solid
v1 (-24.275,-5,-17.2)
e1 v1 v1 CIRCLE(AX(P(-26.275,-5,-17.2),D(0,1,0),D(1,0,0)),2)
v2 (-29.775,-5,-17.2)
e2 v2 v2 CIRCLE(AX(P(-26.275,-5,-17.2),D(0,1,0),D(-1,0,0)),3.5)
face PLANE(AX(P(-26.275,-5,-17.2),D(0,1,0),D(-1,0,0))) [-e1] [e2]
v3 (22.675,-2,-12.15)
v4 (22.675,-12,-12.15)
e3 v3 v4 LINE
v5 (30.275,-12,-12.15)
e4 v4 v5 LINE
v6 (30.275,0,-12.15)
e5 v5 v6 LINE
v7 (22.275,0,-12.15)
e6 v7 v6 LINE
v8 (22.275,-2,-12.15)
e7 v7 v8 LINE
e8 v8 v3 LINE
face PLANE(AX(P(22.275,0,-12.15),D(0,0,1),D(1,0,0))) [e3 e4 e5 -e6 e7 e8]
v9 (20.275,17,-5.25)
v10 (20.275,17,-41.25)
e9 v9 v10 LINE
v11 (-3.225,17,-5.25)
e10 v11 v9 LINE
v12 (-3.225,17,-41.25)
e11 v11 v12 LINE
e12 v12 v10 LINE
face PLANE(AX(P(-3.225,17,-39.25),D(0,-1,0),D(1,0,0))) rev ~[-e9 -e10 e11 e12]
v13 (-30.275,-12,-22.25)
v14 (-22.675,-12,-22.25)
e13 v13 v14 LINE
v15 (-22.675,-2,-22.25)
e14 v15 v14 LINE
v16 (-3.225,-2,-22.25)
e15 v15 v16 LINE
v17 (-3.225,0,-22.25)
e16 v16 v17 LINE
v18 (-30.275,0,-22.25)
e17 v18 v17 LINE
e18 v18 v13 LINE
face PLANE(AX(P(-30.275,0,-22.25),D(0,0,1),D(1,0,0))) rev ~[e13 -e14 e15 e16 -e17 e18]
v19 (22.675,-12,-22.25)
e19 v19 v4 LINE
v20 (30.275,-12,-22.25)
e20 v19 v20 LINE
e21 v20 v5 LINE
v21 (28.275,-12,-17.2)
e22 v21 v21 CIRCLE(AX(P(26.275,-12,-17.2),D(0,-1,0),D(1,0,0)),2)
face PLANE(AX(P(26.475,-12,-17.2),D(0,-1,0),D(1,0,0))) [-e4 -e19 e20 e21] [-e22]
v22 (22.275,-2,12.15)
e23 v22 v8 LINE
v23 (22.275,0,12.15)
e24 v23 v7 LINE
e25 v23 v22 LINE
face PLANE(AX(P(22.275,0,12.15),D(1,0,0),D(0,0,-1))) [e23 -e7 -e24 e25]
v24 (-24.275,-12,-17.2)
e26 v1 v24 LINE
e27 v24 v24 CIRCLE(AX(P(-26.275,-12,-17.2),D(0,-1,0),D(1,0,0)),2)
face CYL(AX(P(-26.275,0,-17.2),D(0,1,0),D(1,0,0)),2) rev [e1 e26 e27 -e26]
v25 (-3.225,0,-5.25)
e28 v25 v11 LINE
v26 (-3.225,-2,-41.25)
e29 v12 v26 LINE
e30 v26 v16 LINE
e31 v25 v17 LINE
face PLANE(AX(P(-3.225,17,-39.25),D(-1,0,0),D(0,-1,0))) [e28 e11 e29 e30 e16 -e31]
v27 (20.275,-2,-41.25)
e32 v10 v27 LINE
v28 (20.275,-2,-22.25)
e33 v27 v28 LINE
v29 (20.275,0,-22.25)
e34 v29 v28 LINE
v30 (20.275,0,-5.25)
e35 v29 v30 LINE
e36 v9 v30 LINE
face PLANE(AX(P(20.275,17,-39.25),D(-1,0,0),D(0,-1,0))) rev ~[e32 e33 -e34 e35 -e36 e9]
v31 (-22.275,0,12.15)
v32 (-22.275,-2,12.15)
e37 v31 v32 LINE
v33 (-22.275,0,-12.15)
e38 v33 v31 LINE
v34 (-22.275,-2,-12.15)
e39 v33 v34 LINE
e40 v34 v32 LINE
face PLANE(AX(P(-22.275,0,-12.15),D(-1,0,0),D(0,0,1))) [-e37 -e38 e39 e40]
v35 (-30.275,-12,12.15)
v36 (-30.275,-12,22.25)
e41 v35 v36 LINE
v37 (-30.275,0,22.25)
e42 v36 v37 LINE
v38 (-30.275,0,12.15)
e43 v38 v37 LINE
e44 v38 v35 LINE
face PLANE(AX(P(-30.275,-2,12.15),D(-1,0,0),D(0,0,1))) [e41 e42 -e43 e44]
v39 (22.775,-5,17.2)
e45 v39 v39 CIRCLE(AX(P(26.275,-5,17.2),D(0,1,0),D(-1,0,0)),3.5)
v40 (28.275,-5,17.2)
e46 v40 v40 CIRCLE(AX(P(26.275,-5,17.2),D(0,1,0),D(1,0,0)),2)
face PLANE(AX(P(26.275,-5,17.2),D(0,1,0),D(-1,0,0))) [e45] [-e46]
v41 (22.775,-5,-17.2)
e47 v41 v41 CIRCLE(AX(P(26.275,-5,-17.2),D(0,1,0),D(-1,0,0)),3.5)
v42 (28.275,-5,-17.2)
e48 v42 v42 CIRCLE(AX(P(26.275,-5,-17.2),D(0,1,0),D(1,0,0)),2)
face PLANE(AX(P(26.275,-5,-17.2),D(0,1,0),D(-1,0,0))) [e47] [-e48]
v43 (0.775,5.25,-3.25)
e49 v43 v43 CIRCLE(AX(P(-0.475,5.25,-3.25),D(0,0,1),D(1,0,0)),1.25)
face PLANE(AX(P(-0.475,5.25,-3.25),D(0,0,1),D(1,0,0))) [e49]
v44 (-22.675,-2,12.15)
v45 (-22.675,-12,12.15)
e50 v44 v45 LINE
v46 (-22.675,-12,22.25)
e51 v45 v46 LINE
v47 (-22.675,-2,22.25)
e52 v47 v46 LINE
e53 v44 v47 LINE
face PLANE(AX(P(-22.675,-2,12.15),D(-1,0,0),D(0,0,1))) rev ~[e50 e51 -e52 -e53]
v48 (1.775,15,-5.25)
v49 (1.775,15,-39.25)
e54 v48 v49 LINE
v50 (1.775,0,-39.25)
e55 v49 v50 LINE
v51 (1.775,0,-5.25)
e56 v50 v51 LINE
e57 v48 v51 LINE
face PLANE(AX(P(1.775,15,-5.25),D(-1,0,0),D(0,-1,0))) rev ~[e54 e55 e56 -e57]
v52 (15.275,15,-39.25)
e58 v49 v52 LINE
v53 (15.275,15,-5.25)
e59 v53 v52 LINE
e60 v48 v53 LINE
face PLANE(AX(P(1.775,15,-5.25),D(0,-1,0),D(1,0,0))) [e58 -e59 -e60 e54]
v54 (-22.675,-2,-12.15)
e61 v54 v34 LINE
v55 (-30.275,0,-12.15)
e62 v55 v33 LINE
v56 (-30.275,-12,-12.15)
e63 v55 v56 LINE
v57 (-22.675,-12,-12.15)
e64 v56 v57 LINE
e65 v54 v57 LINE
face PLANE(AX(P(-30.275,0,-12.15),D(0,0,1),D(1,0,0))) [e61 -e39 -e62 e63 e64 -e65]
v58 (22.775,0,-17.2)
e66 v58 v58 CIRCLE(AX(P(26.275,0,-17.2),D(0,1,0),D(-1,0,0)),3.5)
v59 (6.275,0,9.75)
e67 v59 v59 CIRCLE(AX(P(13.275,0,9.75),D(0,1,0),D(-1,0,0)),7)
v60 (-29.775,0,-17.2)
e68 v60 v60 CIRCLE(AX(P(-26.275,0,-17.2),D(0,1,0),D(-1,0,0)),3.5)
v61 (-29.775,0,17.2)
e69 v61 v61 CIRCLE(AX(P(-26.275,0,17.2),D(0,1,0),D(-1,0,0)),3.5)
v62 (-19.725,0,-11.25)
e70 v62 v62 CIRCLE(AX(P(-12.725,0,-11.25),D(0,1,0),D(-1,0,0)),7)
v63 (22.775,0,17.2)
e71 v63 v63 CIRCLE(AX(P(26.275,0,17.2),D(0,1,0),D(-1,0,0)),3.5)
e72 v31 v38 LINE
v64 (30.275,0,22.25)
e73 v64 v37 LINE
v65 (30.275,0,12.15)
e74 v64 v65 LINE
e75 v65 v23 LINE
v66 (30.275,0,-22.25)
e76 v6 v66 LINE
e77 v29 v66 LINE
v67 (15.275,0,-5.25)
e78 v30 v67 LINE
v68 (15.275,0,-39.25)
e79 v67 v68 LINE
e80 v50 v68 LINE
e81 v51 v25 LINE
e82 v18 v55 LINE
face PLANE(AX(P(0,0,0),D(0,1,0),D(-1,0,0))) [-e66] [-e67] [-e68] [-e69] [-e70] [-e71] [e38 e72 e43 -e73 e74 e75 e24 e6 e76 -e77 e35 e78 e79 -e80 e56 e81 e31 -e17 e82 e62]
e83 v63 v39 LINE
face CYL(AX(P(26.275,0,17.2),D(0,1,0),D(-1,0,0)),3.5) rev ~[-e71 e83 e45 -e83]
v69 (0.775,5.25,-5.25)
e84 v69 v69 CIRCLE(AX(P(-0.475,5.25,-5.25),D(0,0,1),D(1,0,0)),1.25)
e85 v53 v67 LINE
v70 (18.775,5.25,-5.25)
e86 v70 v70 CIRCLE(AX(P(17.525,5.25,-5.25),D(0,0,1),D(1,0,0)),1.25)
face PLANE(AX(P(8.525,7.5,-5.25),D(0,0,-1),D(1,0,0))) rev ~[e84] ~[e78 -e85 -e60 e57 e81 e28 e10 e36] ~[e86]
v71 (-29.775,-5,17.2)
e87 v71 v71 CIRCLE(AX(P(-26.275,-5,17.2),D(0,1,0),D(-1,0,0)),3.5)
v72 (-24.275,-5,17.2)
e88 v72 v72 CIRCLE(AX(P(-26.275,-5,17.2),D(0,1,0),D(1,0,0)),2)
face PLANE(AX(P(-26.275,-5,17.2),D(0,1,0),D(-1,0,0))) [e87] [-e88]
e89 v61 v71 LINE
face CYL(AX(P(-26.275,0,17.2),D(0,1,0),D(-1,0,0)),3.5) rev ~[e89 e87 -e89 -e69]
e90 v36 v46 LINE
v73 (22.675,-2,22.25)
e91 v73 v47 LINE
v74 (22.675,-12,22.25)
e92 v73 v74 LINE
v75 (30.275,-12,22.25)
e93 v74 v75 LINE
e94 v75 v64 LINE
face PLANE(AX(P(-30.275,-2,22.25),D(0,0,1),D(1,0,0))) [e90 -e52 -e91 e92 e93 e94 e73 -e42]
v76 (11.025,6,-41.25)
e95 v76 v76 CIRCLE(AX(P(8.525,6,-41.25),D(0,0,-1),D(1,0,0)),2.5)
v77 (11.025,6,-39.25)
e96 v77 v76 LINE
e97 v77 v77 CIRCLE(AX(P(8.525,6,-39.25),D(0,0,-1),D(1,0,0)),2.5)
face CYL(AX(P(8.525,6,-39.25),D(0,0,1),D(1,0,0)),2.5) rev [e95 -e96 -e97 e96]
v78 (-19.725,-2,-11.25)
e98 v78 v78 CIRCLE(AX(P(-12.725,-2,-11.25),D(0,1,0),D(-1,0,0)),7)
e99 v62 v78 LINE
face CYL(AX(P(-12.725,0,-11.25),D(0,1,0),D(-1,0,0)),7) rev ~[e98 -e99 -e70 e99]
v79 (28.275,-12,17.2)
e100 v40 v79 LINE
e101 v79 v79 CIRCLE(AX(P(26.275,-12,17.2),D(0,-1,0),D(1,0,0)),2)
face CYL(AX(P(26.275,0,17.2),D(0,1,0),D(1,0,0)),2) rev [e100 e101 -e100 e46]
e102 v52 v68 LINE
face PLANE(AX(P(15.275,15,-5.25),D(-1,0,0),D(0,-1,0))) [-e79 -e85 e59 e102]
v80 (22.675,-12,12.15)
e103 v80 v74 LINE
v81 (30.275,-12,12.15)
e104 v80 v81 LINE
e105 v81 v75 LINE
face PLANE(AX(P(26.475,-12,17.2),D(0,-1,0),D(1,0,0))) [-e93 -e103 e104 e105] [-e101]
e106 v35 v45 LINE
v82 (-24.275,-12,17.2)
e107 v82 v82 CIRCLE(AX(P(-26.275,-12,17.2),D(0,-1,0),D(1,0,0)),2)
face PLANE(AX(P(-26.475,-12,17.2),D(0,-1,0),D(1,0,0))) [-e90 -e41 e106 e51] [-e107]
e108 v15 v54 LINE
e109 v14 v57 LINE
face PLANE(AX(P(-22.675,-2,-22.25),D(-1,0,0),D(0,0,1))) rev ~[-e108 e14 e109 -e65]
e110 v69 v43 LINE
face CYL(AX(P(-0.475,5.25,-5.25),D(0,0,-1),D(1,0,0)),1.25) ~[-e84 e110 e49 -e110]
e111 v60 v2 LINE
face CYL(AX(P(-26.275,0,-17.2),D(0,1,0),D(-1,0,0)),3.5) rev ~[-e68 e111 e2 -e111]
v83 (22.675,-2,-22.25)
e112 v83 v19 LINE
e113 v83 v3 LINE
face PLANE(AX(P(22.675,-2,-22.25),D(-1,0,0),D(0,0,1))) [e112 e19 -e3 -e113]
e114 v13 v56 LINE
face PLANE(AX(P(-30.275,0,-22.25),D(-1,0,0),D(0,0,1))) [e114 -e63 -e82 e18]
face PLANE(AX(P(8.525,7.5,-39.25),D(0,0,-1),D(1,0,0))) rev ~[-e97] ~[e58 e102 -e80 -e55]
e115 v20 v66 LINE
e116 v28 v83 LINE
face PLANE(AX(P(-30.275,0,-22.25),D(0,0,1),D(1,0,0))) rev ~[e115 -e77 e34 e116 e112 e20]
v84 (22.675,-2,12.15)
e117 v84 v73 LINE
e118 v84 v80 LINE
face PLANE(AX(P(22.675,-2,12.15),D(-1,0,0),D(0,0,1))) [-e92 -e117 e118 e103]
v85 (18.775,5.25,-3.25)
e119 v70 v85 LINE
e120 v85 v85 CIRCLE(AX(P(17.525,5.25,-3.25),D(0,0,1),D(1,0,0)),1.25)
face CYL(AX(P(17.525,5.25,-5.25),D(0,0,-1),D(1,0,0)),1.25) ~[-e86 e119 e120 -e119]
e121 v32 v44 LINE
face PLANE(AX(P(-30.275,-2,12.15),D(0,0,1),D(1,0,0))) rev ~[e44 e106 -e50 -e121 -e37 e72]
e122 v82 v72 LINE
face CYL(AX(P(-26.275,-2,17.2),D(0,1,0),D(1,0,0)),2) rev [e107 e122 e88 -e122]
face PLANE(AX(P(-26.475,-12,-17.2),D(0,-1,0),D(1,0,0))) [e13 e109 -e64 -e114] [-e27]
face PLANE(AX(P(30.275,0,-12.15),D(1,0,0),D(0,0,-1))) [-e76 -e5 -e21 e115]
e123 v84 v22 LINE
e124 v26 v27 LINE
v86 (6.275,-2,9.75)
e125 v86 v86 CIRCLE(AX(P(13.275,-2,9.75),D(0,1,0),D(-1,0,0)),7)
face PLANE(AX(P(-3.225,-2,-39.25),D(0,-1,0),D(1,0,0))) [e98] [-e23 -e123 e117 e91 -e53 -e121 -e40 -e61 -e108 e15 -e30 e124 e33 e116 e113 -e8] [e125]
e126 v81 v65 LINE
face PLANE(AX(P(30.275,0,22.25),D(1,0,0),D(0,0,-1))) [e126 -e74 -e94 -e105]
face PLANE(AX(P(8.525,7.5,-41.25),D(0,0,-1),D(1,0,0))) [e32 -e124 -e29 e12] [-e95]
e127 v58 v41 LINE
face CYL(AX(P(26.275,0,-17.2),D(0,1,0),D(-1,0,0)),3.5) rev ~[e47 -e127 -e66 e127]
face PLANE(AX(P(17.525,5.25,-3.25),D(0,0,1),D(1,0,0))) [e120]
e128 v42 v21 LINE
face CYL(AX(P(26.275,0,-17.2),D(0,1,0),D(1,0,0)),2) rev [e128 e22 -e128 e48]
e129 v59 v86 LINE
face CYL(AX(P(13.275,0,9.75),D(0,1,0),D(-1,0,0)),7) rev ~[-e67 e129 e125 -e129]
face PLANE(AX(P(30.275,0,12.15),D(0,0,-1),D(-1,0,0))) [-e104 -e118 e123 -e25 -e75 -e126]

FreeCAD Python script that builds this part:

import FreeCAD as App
import Part
import Sketcher
from FreeCAD import Vector


def add_polygon(sketch, points):
    """Adds a closed chain of lines whose ends are joined by coincident constraints."""
    first, n = sketch.GeometryCount, len(points)
    for a, b in zip(points, points[1:] + points[:1]):
        sketch.addGeometry(Part.LineSegment(App.Vector(*a, 0), App.Vector(*b, 0)), False)
    for i in range(n):
        sketch.addConstraint(Sketcher.Constraint("Coincident", first + i, 2, first + (i + 1) % n, 1))

doc = App.newDocument("Part")
body = doc.addObject("PartDesign::Body", "Body")

# Sketch on XZ plane
sketch1 = body.newObject("Sketcher::SketchObject", "Sketch")
sketch1.AttachmentSupport = (doc.getObject("XZ_Plane"), [""])
sketch1.MapMode = "FlatFace"
add_polygon(sketch1, [(30.3, 22.2), (-30.3, 22.2), (-30.3, 12.2), (-22.3, 12.2), (-22.3, -12.2), (-30.3, -12.2), (-30.3, -22.2), (30.3, -22.2), (30.3, -12.2), (22.3, -12.2), (22.3, 12.2), (30.3, 12.2)])  # lines 0-11
sketch1.addGeometry(Part.Circle(Vector(26.3, -17.2, 0), Vector(0, 0, 1), 2), False)  # 12
sketch1.addGeometry(Part.Circle(Vector(-26.3, -17.2, 0), Vector(0, 0, 1), 2), False)  # 13
sketch1.addGeometry(Part.Circle(Vector(26.3, 17.2, 0), Vector(0, 0, 1), 2), False)  # 14
sketch1.addGeometry(Part.Circle(Vector(-26.3, 17.2, 0), Vector(0, 0, 1), 2), False)  # 15
sketch1.addConstraint([
    Sketcher.Constraint("Horizontal", 0),
    Sketcher.Constraint("Vertical", 1),
    Sketcher.Constraint("Horizontal", 2),
    Sketcher.Constraint("Vertical", 3),
    Sketcher.Constraint("Horizontal", 4),
    Sketcher.Constraint("Vertical", 5),
    Sketcher.Constraint("Horizontal", 6),
    Sketcher.Constraint("Vertical", 7),
    Sketcher.Constraint("Horizontal", 8),
    Sketcher.Constraint("Vertical", 9),
    Sketcher.Constraint("Horizontal", 10),
    Sketcher.Constraint("Vertical", 11),
    Sketcher.Constraint("Equal", 12, 13),
    Sketcher.Constraint("Equal", 13, 14),
    Sketcher.Constraint("Equal", 14, 15),
    Sketcher.Constraint("Symmetric", 13, 3, 14, 3, -1, 1),
    Sketcher.Constraint("Symmetric", 12, 3, 15, 3, -1, 1),
    Sketcher.Constraint("Symmetric", 0, 2, 6, 2, -1, 1),
    Sketcher.Constraint("Symmetric", 2, 2, 8, 2, -1, 1),
    Sketcher.Constraint("Symmetric", 4, 2, 10, 2, -1, 1),
    Sketcher.Constraint("Symmetric", 12, 3, 13, 3, -2),
    Sketcher.Constraint("Symmetric", 4, 2, 7, 2, -2),
    Sketcher.Constraint("Diameter", 12, 4.0),
    Sketcher.Constraint("DistanceX", 2, 1, 2, 2, 8.0),
    Sketcher.Constraint("DistanceY", 1, 2, 1, 1, 10.1),
    Sketcher.Constraint("DistanceY", 3, 2, 3, 1, 24.3),
    Sketcher.Constraint("DistanceX", 0, 2, 15, 3, 4.0),
    Sketcher.Constraint("DistanceX", 0, 2, 0, 1, 60.55),
    Sketcher.Constraint("DistanceY", 12, 3, -1, 1, 17.2),
])
pad1 = body.newObject("PartDesign::Pad", "Pad")
pad1.Profile = sketch1
pad1.Length = 2

# Sketch on XZ plane
sketch2 = body.newObject("Sketcher::SketchObject", "Sketch001")
sketch2.AttachmentSupport = (doc.getObject("XZ_Plane"), [""])
sketch2.MapMode = "FlatFace"
sketch2.AttachmentOffset = App.Placement(Vector(0, 0, 2), App.Rotation())
add_polygon(sketch2, [(-30.3, 22.2), (-30.3, 12.2), (-22.7, 12.2), (-22.7, 22.2)])  # lines 0-3
sketch2.addGeometry(Part.Circle(Vector(-26.3, 17.2, 0), Vector(0, 0, 1), 2), False)  # 4
add_polygon(sketch2, [(-30.3, -12.2), (-30.3, -22.2), (-22.7, -22.2), (-22.7, -12.2)])  # lines 5-8
sketch2.addGeometry(Part.Circle(Vector(-26.3, -17.2, 0), Vector(0, 0, 1), 2), False)  # 9
add_polygon(sketch2, [(22.7, -12.2), (22.7, -22.2), (30.3, -22.2), (30.3, -12.2)])  # lines 10-13
sketch2.addGeometry(Part.Circle(Vector(26.3, -17.2, 0), Vector(0, 0, 1), 2), False)  # 14
add_polygon(sketch2, [(22.7, 22.2), (22.7, 12.2), (30.3, 12.2), (30.3, 22.2)])  # lines 15-18
sketch2.addGeometry(Part.Circle(Vector(26.3, 17.2, 0), Vector(0, 0, 1), 2), False)  # 19
sketch2.addConstraint([
    Sketcher.Constraint("Vertical", 0),
    Sketcher.Constraint("Horizontal", 1),
    Sketcher.Constraint("Vertical", 2),
    Sketcher.Constraint("Horizontal", 3),
    Sketcher.Constraint("Vertical", 5),
    Sketcher.Constraint("Horizontal", 6),
    Sketcher.Constraint("Vertical", 7),
    Sketcher.Constraint("Horizontal", 8),
    Sketcher.Constraint("Vertical", 10),
    Sketcher.Constraint("Horizontal", 11),
    Sketcher.Constraint("Vertical", 12),
    Sketcher.Constraint("Horizontal", 13),
    Sketcher.Constraint("Vertical", 15),
    Sketcher.Constraint("Horizontal", 16),
    Sketcher.Constraint("Vertical", 17),
    Sketcher.Constraint("Horizontal", 18),
    Sketcher.Constraint("Equal", 4, 9),
    Sketcher.Constraint("Equal", 9, 14),
    Sketcher.Constraint("Equal", 14, 19),
    Sketcher.Constraint("Symmetric", 4, 3, 14, 3, -1, 1),
    Sketcher.Constraint("Symmetric", 9, 3, 19, 3, -1, 1),
    Sketcher.Constraint("Symmetric", 2, 2, 10, 2, -1, 1),
    Sketcher.Constraint("Symmetric", 0, 2, 12, 2, -1, 1),
    Sketcher.Constraint("Symmetric", 7, 2, 15, 2, -1, 1),
    Sketcher.Constraint("Symmetric", 5, 2, 17, 2, -1, 1),
    Sketcher.Constraint("Symmetric", 9, 3, 14, 3, -2),
    Sketcher.Constraint("Symmetric", 6, 2, 10, 2, -2),
    Sketcher.Constraint("Symmetric", 8, 2, 12, 2, -2),
    Sketcher.Constraint("Diameter", 4, 4.0),
    Sketcher.Constraint("DistanceX", 1, 1, 1, 2, 7.6),
    Sketcher.Constraint("DistanceY", 0, 2, 0, 1, 10.1),
    Sketcher.Constraint("DistanceX", 0, 2, 4, 3, 4.0),
    Sketcher.Constraint("DistanceY", -1, 1, 4, 3, 17.2),
    Sketcher.Constraint("DistanceY", 5, 2, 0, 2, 34.4),
    Sketcher.Constraint("DistanceX", 9, 3, 14, 3, 52.55),
])
pad2 = body.newObject("PartDesign::Pad", "Pad001")
pad2.Profile = sketch2
pad2.Length = 10

# Sketch on XZ plane
sketch3 = body.newObject("Sketcher::SketchObject", "Sketch002")
sketch3.AttachmentSupport = (doc.getObject("XZ_Plane"), [""])
sketch3.MapMode = "FlatFace"
sketch3.addGeometry([
    Part.Circle(Vector(13, 10, 0), Vector(0, 0, 1), 7),
    Part.Circle(Vector(-13, -11, 0), Vector(0, 0, 1), 7),
], False)
sketch3.addConstraint([
    Sketcher.Constraint("Equal", 0, 1),
    Sketcher.Constraint("Diameter", 0, 14.0),
    Sketcher.Constraint("DistanceX", 1, 3, 0, 3, 26.0),
    Sketcher.Constraint("DistanceY", 1, 3, 0, 3, 21.0),
    Sketcher.Constraint("DistanceY", -1, 1, 0, 3, 9.75),
    Sketcher.Constraint("DistanceX", -1, 1, 0, 3, 13.275),
])
pocket1 = body.newObject("PartDesign::Pocket", "Pocket")
pocket1.Profile = sketch3
pocket1.Type = "ThroughAll"
pocket1.Reversed = True

# Sketch on XY plane
sketch4 = body.newObject("Sketcher::SketchObject", "Sketch003")
sketch4.AttachmentSupport = (doc.getObject("XY_Plane"), [""])
sketch4.MapMode = "FlatFace"
sketch4.AttachmentOffset = App.Placement(Vector(0, 0, -5.25), App.Rotation())
add_polygon(sketch4, [(-3, 17), (20, 17), (20, -2), (-3, -2)])  # lines 0-3
add_polygon(sketch4, [(15, 15), (2, 15), (2, 0), (15, 0)])  # lines 4-7
sketch4.addConstraint([
    Sketcher.Constraint("Horizontal", 0),
    Sketcher.Constraint("Vertical", 1),
    Sketcher.Constraint("Horizontal", 2),
    Sketcher.Constraint("Vertical", 3),
    Sketcher.Constraint("Horizontal", 4),
    Sketcher.Constraint("Vertical", 5),
    Sketcher.Constraint("Horizontal", 6),
    Sketcher.Constraint("Vertical", 7),
    Sketcher.Constraint("PointOnObject", 5, 2, -1),
    Sketcher.Constraint("DistanceY", 1, 2, 1, 1, 19.0),
    Sketcher.Constraint("DistanceY", 5, 2, 5, 1, 15.0),
    Sketcher.Constraint("DistanceX", 0, 1, 0, 2, 23.5),
    Sketcher.Constraint("DistanceX", 4, 2, 4, 1, 13.5),
    Sketcher.Constraint("DistanceY", -1, 1, 0, 2, 17.0),
    Sketcher.Constraint("DistanceX", 3, 2, 4, 2, 5.0),
    Sketcher.Constraint("DistanceX", -1, 1, 0, 2, 20.275),
])
pad3 = body.newObject("PartDesign::Pad", "Pad002")
pad3.Profile = sketch4
pad3.Length = 34
pad3.Reversed = True

# Sketch on XY plane
sketch5 = body.newObject("Sketcher::SketchObject", "Sketch004")
sketch5.AttachmentSupport = (doc.getObject("XY_Plane"), [""])
sketch5.MapMode = "FlatFace"
sketch5.AttachmentOffset = App.Placement(Vector(0, 0, -39.25), App.Rotation())
add_polygon(sketch5, [(-3.2, -2), (-3.2, 17), (20.3, 17), (20.3, -2)])  # lines 0-3
sketch5.addGeometry(Part.Circle(Vector(8.5, 6, 0), Vector(0, 0, 1), 2.5), False)  # 4
sketch5.addConstraint([
    Sketcher.Constraint("Vertical", 0),
    Sketcher.Constraint("Horizontal", 1),
    Sketcher.Constraint("Vertical", 2),
    Sketcher.Constraint("Horizontal", 3),
    Sketcher.Constraint("Diameter", 4, 5.0),
    Sketcher.Constraint("DistanceY", 0, 1, 0, 2, 19.0),
    Sketcher.Constraint("DistanceX", 1, 1, 1, 2, 23.5),
    Sketcher.Constraint("DistanceY", -1, 1, 4, 3, 6.0),
    Sketcher.Constraint("DistanceY", -1, 1, 0, 2, 17.0),
    Sketcher.Constraint("DistanceX", 0, 2, 4, 3, 11.75),
    Sketcher.Constraint("DistanceX", -1, 1, 4, 3, 8.525),
])
pad4 = body.newObject("PartDesign::Pad", "Pad003")
pad4.Profile = sketch5
pad4.Length = 2
pad4.Reversed = True

# Sketch on XY plane
sketch6 = body.newObject("Sketcher::SketchObject", "Sketch005")
sketch6.AttachmentSupport = (doc.getObject("XY_Plane"), [""])
sketch6.MapMode = "FlatFace"
sketch6.AttachmentOffset = App.Placement(Vector(0, 0, -5.25), App.Rotation())
sketch6.addGeometry([
    Part.Circle(Vector(-0.5, 5.2, 0), Vector(0, 0, 1), 1.2),
    Part.Circle(Vector(17.5, 5.2, 0), Vector(0, 0, 1), 1.2),
], False)
sketch6.addConstraint([
    Sketcher.Constraint("Equal", 0, 1),
    Sketcher.Constraint("Horizontal", 0, 3, 1, 3),
    Sketcher.Constraint("Diameter", 0, 2.5),
    Sketcher.Constraint("DistanceX", 0, 3, 1, 3, 18.0),
    Sketcher.Constraint("DistanceY", -1, 1, 0, 3, 5.25),
    Sketcher.Constraint("DistanceX", 0, 3, -1, 1, 0.475),
])
pad5 = body.newObject("PartDesign::Pad", "Pad004")
pad5.Profile = sketch6
pad5.Length = 2

# Sketch on XZ plane
sketch7 = body.newObject("Sketcher::SketchObject", "Sketch006")
sketch7.AttachmentSupport = (doc.getObject("XZ_Plane"), [""])
sketch7.MapMode = "FlatFace"
sketch7.addGeometry([
    Part.Circle(Vector(-26.3, -17.2, 0), Vector(0, 0, 1), 3.5),
    Part.Circle(Vector(-26.3, 17.2, 0), Vector(0, 0, 1), 3.5),
    Part.Circle(Vector(26.3, 17.2, 0), Vector(0, 0, 1), 3.5),
    Part.Circle(Vector(26.3, -17.2, 0), Vector(0, 0, 1), 3.5),
], False)
sketch7.addConstraint([
    Sketcher.Constraint("Equal", 0, 1),
    Sketcher.Constraint("Equal", 1, 2),
    Sketcher.Constraint("Equal", 2, 3),
    Sketcher.Constraint("Symmetric", 0, 3, 2, 3, -1, 1),
    Sketcher.Constraint("Symmetric", 1, 3, 3, 3, -1, 1),
    Sketcher.Constraint("Symmetric", 1, 3, 2, 3, -2),
    Sketcher.Constraint("Diameter", 0, 7.0),
    Sketcher.Constraint("DistanceY", 0, 3, -1, 1, 17.2),
    Sketcher.Constraint("DistanceX", 1, 3, 2, 3, 52.55),
])
pocket2 = body.newObject("PartDesign::Pocket", "Pocket001")
pocket2.Profile = sketch7
pocket2.Length = 5
pocket2.Reversed = True

doc.recompute()
